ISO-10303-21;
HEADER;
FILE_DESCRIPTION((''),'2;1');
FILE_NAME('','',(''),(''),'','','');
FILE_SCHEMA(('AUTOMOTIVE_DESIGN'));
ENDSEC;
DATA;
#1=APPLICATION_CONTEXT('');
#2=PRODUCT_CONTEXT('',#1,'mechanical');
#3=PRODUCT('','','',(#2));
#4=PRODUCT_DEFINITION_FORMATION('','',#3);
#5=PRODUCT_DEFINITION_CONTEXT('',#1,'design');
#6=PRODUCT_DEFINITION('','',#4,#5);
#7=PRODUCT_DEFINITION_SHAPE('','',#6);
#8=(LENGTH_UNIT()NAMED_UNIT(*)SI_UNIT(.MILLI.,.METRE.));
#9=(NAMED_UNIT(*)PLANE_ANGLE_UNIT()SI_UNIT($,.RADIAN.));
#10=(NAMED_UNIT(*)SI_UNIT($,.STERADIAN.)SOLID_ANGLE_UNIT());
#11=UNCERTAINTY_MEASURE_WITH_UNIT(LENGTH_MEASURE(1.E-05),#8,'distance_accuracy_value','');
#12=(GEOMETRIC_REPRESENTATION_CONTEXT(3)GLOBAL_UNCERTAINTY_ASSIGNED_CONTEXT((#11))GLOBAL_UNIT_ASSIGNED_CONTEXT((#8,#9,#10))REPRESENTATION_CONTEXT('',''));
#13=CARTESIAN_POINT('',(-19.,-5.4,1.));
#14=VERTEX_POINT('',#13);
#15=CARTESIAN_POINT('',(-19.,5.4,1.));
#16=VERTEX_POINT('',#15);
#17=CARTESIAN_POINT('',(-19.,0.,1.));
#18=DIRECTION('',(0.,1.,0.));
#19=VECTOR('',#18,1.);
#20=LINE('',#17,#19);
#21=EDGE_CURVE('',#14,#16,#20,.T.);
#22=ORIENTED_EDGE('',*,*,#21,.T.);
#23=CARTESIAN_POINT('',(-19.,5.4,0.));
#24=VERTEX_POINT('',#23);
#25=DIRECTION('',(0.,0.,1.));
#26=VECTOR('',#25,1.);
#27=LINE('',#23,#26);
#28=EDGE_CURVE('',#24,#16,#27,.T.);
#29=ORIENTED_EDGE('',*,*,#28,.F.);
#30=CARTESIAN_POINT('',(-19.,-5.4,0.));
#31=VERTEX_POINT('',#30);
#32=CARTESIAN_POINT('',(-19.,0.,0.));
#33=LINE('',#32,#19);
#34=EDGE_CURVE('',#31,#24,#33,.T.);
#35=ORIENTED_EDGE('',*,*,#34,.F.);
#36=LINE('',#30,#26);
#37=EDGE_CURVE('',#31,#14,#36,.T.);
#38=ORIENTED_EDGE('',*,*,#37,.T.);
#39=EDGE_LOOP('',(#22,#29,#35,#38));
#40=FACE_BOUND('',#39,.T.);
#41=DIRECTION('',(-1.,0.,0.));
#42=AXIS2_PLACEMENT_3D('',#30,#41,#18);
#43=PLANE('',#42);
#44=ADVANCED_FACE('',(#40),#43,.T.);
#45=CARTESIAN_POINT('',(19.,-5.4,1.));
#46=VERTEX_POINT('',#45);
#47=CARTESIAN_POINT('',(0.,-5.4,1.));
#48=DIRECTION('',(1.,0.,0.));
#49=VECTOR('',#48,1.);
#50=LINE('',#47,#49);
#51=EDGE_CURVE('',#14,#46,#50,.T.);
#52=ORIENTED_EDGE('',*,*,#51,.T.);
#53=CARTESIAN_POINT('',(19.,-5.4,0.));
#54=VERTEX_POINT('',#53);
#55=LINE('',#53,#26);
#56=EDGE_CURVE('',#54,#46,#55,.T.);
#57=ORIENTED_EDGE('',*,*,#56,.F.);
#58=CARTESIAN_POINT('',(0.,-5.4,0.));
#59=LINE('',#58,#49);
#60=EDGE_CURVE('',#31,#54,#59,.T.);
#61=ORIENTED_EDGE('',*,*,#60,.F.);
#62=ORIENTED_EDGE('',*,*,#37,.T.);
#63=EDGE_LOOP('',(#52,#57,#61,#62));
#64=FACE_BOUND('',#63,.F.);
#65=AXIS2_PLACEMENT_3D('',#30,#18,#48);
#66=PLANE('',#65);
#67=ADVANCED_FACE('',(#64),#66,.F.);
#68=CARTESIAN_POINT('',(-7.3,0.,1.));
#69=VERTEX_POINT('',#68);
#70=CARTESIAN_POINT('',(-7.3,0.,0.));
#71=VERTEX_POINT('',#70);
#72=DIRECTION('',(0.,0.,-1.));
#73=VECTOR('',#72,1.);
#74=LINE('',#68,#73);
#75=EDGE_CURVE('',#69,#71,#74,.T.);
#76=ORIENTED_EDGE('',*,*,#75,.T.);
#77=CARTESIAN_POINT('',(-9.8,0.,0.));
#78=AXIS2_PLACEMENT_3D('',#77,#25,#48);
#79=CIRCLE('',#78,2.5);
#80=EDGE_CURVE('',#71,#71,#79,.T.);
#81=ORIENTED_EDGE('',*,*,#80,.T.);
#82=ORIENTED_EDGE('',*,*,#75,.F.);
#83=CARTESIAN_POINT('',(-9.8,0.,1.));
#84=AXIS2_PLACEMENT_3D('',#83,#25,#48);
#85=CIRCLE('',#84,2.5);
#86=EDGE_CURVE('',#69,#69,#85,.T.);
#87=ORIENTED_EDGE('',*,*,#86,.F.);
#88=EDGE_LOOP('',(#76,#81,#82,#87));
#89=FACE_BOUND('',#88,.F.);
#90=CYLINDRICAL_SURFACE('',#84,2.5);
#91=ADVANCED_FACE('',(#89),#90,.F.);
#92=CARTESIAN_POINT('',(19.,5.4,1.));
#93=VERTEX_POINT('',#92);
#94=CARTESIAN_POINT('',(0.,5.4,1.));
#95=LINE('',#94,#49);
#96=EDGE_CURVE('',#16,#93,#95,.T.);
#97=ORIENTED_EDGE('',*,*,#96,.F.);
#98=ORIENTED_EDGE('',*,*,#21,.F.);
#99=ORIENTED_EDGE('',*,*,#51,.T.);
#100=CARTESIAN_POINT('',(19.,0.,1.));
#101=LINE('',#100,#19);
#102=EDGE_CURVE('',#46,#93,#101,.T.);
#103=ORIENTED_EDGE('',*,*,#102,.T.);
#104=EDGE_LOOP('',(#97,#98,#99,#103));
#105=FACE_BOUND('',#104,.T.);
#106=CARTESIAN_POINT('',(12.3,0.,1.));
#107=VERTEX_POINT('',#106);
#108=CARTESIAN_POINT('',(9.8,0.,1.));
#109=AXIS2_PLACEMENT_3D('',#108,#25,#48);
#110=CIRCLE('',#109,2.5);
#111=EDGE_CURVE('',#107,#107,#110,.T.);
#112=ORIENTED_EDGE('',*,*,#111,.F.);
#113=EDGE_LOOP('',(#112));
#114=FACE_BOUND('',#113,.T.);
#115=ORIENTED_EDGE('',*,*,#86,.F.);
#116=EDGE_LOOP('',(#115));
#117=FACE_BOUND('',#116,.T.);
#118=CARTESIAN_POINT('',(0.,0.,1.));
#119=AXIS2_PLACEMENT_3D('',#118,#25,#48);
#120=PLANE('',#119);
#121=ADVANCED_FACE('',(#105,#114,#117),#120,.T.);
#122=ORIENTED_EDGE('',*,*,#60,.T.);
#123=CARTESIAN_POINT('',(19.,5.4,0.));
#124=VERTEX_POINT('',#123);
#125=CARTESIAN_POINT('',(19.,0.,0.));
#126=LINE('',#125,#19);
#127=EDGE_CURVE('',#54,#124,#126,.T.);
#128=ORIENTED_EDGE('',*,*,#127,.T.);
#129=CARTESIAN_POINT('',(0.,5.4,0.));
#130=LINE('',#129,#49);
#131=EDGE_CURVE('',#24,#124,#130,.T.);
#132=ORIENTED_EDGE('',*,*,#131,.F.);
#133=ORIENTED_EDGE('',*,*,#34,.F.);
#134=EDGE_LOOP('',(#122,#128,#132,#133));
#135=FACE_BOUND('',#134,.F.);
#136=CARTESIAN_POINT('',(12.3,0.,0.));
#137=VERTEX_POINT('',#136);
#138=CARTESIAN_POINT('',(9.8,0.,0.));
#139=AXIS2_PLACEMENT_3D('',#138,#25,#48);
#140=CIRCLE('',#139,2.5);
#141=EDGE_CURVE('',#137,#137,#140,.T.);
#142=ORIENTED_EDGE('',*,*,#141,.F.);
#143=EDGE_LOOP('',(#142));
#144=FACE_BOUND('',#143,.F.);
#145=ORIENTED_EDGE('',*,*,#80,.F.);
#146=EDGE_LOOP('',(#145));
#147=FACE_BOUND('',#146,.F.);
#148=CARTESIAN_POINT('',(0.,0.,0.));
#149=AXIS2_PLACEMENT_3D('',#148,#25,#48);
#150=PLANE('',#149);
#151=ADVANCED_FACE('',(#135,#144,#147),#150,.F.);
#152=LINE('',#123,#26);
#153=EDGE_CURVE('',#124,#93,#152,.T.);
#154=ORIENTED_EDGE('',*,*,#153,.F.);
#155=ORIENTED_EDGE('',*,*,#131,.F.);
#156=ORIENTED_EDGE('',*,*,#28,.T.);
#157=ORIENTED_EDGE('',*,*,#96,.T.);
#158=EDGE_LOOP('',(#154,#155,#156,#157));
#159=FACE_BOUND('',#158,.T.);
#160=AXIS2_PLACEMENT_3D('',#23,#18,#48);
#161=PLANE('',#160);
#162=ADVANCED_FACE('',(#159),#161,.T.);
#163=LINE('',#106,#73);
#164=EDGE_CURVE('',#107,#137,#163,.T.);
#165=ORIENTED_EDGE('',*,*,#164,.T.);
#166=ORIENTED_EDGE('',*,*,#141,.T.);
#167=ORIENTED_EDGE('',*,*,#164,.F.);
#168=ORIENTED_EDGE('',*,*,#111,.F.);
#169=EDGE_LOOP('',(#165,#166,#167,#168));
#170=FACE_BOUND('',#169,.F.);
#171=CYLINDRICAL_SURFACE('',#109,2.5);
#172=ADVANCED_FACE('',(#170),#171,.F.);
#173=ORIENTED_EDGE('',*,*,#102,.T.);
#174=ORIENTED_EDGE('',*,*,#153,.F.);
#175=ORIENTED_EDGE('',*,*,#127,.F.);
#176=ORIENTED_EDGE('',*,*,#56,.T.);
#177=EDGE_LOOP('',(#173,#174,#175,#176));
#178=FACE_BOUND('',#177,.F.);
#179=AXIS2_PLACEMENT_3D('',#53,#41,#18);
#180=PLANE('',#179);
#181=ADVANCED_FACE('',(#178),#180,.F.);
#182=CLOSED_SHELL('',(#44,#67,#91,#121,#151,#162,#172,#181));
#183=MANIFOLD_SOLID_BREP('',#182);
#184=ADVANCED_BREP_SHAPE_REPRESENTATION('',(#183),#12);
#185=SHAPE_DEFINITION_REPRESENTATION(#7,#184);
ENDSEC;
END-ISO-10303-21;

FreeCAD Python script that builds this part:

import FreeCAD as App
import Part
import Sketcher
from FreeCAD import Vector
Q = App.Units.Quantity


def add_polygon(sketch, points):
    """Adds a closed chain of lines whose ends are joined by coincident constraints."""
    first, n = sketch.GeometryCount, len(points)
    for a, b in zip(points, points[1:] + points[:1]):
        sketch.addGeometry(Part.LineSegment(App.Vector(*a, 0), App.Vector(*b, 0)), False)
    for i in range(n):
        sketch.addConstraint(Sketcher.Constraint("Coincident", first + i, 2, first + (i + 1) % n, 1))

doc = App.newDocument("Part")
params = doc.addObject("Spreadsheet::Sheet", "Params")
for row, (alias, value) in enumerate([
    ("sketch1_width", "38 mm"),
    ("sketch1_height", "10.8 mm"),
    ("pad1_length", "1 mm"),
    ("sketch2_diameter", "5 mm"),
    ("pocket1_length", "5 mm"),
], start=1):
    params.set(f"A{row}", alias)
    params.set(f"B{row}", "=" + value)
    params.setAlias(f"B{row}", alias)

body = doc.addObject("PartDesign::Body", "Body")

sketch1 = body.newObject("Sketcher::SketchObject", "Sketch")
sketch1.AttachmentSupport = (doc.getObject("XY_Plane"), [""])
sketch1.MapMode = "FlatFace"
add_polygon(sketch1, [(-19, 5), (-19, -5), (19, -5), (19, 5)])
sketch1.addConstraint([
    Sketcher.Constraint("Vertical", 0),
    Sketcher.Constraint("Horizontal", 1),
    Sketcher.Constraint("Vertical", 2),
    Sketcher.Constraint("Horizontal", 3),
    Sketcher.Constraint("Symmetric", 0, 2, 2, 2, -1, 1),
    Sketcher.Constraint("DistanceX", 1, 1, 1, 2, Q("38 mm")),
    Sketcher.Constraint("DistanceY", 0, 2, 0, 1, Q("10.8 mm")),
])
sketch1.setExpression("Constraints[9]", "Params.sketch1_width")
sketch1.setExpression("Constraints[10]", "Params.sketch1_height")
pad1 = body.newObject("PartDesign::Pad", "Pad")
pad1.Profile = sketch1
pad1.setExpression("Length", "Params.pad1_length")

sketch2 = body.newObject("Sketcher::SketchObject", "Sketch001")
sketch2.AttachmentSupport = (doc.getObject("XY_Plane"), [""])
sketch2.MapMode = "FlatFace"
sketch2.AttachmentOffset = App.Placement(Vector(0, 0, 1), App.Rotation())
sketch2.addGeometry([
    Part.Circle(Vector(-9.8, 0, 0), Vector(0, 0, 1), 2.5),
    Part.Circle(Vector(9.8, 0, 0), Vector(0, 0, 1), 2.5),
], False)
sketch2.addConstraint([
    Sketcher.Constraint("Equal", 0, 1),
    Sketcher.Constraint("Symmetric", 0, 3, 1, 3, -1, 1),
    Sketcher.Constraint("PointOnObject", 0, 3, -1),
    Sketcher.Constraint("Diameter", 0, Q("5 mm")),
    Sketcher.Constraint("DistanceX", 0, 3, -1, 1, Q("9.8 mm")),
])
sketch2.setExpression("Constraints[3]", "Params.sketch2_diameter")
pocket1 = body.newObject("PartDesign::Pocket", "Pocket")
pocket1.Profile = sketch2
pocket1.setExpression("Length", "Params.pocket1_length")

doc.recompute()
